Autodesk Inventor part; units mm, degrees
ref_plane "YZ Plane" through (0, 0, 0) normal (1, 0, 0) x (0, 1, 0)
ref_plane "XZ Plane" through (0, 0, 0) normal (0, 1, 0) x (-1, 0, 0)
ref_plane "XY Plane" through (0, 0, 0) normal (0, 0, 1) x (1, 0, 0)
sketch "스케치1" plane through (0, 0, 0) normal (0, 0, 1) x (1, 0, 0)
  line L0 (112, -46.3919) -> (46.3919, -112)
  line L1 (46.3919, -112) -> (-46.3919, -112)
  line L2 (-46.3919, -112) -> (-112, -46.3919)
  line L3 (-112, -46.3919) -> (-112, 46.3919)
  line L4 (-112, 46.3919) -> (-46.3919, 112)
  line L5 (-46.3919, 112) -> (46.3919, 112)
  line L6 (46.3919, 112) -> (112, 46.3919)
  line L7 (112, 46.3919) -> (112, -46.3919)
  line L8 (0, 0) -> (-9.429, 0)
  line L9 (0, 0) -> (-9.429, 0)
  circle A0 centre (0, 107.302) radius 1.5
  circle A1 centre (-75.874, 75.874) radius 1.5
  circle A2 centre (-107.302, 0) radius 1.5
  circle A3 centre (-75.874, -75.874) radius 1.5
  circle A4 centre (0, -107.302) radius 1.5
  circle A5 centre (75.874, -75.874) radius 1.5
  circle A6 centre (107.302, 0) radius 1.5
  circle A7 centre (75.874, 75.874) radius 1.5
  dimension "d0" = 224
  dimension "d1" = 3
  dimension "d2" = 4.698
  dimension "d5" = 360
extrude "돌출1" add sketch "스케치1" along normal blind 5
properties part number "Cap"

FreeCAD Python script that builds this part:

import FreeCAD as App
import Part
import Sketcher

V = App.Vector

doc = App.newDocument("Part")
body = doc.addObject("PartDesign::Body", "Body")

# Sketch on XY plane
sketch1 = doc.addObject("Sketcher::SketchObject", "Sketch")
body.addObject(sketch1)
sketch1.AttachmentSupport = (doc.XY_Plane, [""])
sketch1.MapMode = "FlatFace"
sketch1.addGeometry(Part.LineSegment(V(46.3919, -112, 0), V(112, -46.3919, 0)), False)
sketch1.addGeometry(Part.LineSegment(V(112, -46.3919, 0), V(112, 46.3919, 0)), False)
sketch1.addGeometry(Part.LineSegment(V(112, 46.3919, 0), V(46.3919, 112, 0)), False)
sketch1.addGeometry(Part.LineSegment(V(46.3919, 112, 0), V(-46.3919, 112, 0)), False)
sketch1.addGeometry(Part.LineSegment(V(-46.3919, 112, 0), V(-112, 46.3919, 0)), False)
sketch1.addGeometry(Part.LineSegment(V(-112, 46.3919, 0), V(-112, -46.3919, 0)), False)
sketch1.addGeometry(Part.LineSegment(V(-112, -46.3919, 0), V(-46.3919, -112, 0)), False)
sketch1.addGeometry(Part.LineSegment(V(-46.3919, -112, 0), V(46.3919, -112, 0)), False)
sketch1.addGeometry(Part.Circle(V(-75.874, -75.874, 0), V(0, 0, 1), 1.5), False)
sketch1.addGeometry(Part.Circle(V(0, -107.302, 0), V(0, 0, 1), 1.5), False)
sketch1.addGeometry(Part.Circle(V(75.874, -75.874, 0), V(0, 0, 1), 1.5), False)
sketch1.addGeometry(Part.Circle(V(-107.302, 0, 0), V(0, 0, 1), 1.5), False)
sketch1.addGeometry(Part.Circle(V(-75.874, 75.874, 0), V(0, 0, 1), 1.5), False)
sketch1.addGeometry(Part.Circle(V(107.302, 0, 0), V(0, 0, 1), 1.5), False)
sketch1.addGeometry(Part.Circle(V(0, 107.302, 0), V(0, 0, 1), 1.5), False)
sketch1.addGeometry(Part.Circle(V(75.874, 75.874, 0), V(0, 0, 1), 1.5), False)
sketch1.addConstraint(Sketcher.Constraint("Coincident", 0, 2, 1, 1))
sketch1.addConstraint(Sketcher.Constraint("Coincident", 1, 2, 2, 1))
sketch1.addConstraint(Sketcher.Constraint("Coincident", 2, 2, 3, 1))
sketch1.addConstraint(Sketcher.Constraint("Coincident", 3, 2, 4, 1))
sketch1.addConstraint(Sketcher.Constraint("Coincident", 4, 2, 5, 1))
sketch1.addConstraint(Sketcher.Constraint("Coincident", 5, 2, 6, 1))
sketch1.addConstraint(Sketcher.Constraint("Coincident", 6, 2, 7, 1))
sketch1.addConstraint(Sketcher.Constraint("Coincident", 7, 2, 0, 1))
sketch1.addConstraint(Sketcher.Constraint("Vertical", 1))
sketch1.addConstraint(Sketcher.Constraint("Horizontal", 3))
sketch1.addConstraint(Sketcher.Constraint("Vertical", 5))
sketch1.addConstraint(Sketcher.Constraint("Horizontal", 7))
sketch1.addConstraint(Sketcher.Constraint("Equal", 8, 9))
sketch1.addConstraint(Sketcher.Constraint("Equal", 9, 10))
sketch1.addConstraint(Sketcher.Constraint("Equal", 10, 11))
sketch1.addConstraint(Sketcher.Constraint("Equal", 11, 12))
sketch1.addConstraint(Sketcher.Constraint("Equal", 12, 13))
sketch1.addConstraint(Sketcher.Constraint("Equal", 13, 14))
sketch1.addConstraint(Sketcher.Constraint("Equal", 14, 15))
sketch1.addConstraint(Sketcher.Constraint("Symmetric", 10, 3, 12, 3, -1, 1))
sketch1.addConstraint(Sketcher.Constraint("Symmetric", 11, 3, 13, 3, -1, 1))
sketch1.addConstraint(Sketcher.Constraint("Symmetric", 9, 3, 14, 3, -1, 1))
sketch1.addConstraint(Sketcher.Constraint("Symmetric", 8, 3, 15, 3, -1, 1))
sketch1.addConstraint(Sketcher.Constraint("Symmetric", 0, 2, 4, 2, -1, 1))
sketch1.addConstraint(Sketcher.Constraint("Symmetric", 2, 2, 6, 2, -1, 1))
sketch1.addConstraint(Sketcher.Constraint("Symmetric", 8, 3, 10, 3, -2))
sketch1.addConstraint(Sketcher.Constraint("PointOnObject", 9, 3, -2))
sketch1.addConstraint(Sketcher.Constraint("PointOnObject", 11, 3, -1))
sketch1.addConstraint(Sketcher.Constraint("Perpendicular", 0, 2))
sketch1.addConstraint(Sketcher.Constraint("Perpendicular", 2, 4))
sketch1.addConstraint(Sketcher.Constraint("Perpendicular", 4, 6))
sketch1.addConstraint(Sketcher.Constraint("Horizontal", 1, 2, 4, 2))
sketch1.addConstraint(Sketcher.Constraint("Vertical", 3, 2, 6, 2))
sketch1.addConstraint(Sketcher.Constraint("Equal", 7, 1))
sketch1.addConstraint(Sketcher.Constraint("Diameter", 8, 3.0))
sketch1.addConstraint(Sketcher.Constraint("DistanceX", -1, 1, 0, 2, 112.0))
sketch1.addConstraint(Sketcher.Constraint("DistanceX", 13, 3, 0, 2, 4.698))
sketch1.addConstraint(Sketcher.Constraint("DistanceY", 14, 3, 2, 2, 4.698))
sketch1.addConstraint(Sketcher.Constraint("DistanceY", 9, 3, 0, 2, 60.91))
sketch1.addConstraint(Sketcher.Constraint("DistanceX", 8, 3, -1, 1, 75.874))
sketch1.addConstraint(Sketcher.Constraint("DistanceY", 8, 3, -1, 1, 75.874))
pad1 = doc.addObject("PartDesign::Pad", "Pad")
body.addObject(pad1)
pad1.Profile = sketch1
pad1.Length = 5

doc.recompute()
